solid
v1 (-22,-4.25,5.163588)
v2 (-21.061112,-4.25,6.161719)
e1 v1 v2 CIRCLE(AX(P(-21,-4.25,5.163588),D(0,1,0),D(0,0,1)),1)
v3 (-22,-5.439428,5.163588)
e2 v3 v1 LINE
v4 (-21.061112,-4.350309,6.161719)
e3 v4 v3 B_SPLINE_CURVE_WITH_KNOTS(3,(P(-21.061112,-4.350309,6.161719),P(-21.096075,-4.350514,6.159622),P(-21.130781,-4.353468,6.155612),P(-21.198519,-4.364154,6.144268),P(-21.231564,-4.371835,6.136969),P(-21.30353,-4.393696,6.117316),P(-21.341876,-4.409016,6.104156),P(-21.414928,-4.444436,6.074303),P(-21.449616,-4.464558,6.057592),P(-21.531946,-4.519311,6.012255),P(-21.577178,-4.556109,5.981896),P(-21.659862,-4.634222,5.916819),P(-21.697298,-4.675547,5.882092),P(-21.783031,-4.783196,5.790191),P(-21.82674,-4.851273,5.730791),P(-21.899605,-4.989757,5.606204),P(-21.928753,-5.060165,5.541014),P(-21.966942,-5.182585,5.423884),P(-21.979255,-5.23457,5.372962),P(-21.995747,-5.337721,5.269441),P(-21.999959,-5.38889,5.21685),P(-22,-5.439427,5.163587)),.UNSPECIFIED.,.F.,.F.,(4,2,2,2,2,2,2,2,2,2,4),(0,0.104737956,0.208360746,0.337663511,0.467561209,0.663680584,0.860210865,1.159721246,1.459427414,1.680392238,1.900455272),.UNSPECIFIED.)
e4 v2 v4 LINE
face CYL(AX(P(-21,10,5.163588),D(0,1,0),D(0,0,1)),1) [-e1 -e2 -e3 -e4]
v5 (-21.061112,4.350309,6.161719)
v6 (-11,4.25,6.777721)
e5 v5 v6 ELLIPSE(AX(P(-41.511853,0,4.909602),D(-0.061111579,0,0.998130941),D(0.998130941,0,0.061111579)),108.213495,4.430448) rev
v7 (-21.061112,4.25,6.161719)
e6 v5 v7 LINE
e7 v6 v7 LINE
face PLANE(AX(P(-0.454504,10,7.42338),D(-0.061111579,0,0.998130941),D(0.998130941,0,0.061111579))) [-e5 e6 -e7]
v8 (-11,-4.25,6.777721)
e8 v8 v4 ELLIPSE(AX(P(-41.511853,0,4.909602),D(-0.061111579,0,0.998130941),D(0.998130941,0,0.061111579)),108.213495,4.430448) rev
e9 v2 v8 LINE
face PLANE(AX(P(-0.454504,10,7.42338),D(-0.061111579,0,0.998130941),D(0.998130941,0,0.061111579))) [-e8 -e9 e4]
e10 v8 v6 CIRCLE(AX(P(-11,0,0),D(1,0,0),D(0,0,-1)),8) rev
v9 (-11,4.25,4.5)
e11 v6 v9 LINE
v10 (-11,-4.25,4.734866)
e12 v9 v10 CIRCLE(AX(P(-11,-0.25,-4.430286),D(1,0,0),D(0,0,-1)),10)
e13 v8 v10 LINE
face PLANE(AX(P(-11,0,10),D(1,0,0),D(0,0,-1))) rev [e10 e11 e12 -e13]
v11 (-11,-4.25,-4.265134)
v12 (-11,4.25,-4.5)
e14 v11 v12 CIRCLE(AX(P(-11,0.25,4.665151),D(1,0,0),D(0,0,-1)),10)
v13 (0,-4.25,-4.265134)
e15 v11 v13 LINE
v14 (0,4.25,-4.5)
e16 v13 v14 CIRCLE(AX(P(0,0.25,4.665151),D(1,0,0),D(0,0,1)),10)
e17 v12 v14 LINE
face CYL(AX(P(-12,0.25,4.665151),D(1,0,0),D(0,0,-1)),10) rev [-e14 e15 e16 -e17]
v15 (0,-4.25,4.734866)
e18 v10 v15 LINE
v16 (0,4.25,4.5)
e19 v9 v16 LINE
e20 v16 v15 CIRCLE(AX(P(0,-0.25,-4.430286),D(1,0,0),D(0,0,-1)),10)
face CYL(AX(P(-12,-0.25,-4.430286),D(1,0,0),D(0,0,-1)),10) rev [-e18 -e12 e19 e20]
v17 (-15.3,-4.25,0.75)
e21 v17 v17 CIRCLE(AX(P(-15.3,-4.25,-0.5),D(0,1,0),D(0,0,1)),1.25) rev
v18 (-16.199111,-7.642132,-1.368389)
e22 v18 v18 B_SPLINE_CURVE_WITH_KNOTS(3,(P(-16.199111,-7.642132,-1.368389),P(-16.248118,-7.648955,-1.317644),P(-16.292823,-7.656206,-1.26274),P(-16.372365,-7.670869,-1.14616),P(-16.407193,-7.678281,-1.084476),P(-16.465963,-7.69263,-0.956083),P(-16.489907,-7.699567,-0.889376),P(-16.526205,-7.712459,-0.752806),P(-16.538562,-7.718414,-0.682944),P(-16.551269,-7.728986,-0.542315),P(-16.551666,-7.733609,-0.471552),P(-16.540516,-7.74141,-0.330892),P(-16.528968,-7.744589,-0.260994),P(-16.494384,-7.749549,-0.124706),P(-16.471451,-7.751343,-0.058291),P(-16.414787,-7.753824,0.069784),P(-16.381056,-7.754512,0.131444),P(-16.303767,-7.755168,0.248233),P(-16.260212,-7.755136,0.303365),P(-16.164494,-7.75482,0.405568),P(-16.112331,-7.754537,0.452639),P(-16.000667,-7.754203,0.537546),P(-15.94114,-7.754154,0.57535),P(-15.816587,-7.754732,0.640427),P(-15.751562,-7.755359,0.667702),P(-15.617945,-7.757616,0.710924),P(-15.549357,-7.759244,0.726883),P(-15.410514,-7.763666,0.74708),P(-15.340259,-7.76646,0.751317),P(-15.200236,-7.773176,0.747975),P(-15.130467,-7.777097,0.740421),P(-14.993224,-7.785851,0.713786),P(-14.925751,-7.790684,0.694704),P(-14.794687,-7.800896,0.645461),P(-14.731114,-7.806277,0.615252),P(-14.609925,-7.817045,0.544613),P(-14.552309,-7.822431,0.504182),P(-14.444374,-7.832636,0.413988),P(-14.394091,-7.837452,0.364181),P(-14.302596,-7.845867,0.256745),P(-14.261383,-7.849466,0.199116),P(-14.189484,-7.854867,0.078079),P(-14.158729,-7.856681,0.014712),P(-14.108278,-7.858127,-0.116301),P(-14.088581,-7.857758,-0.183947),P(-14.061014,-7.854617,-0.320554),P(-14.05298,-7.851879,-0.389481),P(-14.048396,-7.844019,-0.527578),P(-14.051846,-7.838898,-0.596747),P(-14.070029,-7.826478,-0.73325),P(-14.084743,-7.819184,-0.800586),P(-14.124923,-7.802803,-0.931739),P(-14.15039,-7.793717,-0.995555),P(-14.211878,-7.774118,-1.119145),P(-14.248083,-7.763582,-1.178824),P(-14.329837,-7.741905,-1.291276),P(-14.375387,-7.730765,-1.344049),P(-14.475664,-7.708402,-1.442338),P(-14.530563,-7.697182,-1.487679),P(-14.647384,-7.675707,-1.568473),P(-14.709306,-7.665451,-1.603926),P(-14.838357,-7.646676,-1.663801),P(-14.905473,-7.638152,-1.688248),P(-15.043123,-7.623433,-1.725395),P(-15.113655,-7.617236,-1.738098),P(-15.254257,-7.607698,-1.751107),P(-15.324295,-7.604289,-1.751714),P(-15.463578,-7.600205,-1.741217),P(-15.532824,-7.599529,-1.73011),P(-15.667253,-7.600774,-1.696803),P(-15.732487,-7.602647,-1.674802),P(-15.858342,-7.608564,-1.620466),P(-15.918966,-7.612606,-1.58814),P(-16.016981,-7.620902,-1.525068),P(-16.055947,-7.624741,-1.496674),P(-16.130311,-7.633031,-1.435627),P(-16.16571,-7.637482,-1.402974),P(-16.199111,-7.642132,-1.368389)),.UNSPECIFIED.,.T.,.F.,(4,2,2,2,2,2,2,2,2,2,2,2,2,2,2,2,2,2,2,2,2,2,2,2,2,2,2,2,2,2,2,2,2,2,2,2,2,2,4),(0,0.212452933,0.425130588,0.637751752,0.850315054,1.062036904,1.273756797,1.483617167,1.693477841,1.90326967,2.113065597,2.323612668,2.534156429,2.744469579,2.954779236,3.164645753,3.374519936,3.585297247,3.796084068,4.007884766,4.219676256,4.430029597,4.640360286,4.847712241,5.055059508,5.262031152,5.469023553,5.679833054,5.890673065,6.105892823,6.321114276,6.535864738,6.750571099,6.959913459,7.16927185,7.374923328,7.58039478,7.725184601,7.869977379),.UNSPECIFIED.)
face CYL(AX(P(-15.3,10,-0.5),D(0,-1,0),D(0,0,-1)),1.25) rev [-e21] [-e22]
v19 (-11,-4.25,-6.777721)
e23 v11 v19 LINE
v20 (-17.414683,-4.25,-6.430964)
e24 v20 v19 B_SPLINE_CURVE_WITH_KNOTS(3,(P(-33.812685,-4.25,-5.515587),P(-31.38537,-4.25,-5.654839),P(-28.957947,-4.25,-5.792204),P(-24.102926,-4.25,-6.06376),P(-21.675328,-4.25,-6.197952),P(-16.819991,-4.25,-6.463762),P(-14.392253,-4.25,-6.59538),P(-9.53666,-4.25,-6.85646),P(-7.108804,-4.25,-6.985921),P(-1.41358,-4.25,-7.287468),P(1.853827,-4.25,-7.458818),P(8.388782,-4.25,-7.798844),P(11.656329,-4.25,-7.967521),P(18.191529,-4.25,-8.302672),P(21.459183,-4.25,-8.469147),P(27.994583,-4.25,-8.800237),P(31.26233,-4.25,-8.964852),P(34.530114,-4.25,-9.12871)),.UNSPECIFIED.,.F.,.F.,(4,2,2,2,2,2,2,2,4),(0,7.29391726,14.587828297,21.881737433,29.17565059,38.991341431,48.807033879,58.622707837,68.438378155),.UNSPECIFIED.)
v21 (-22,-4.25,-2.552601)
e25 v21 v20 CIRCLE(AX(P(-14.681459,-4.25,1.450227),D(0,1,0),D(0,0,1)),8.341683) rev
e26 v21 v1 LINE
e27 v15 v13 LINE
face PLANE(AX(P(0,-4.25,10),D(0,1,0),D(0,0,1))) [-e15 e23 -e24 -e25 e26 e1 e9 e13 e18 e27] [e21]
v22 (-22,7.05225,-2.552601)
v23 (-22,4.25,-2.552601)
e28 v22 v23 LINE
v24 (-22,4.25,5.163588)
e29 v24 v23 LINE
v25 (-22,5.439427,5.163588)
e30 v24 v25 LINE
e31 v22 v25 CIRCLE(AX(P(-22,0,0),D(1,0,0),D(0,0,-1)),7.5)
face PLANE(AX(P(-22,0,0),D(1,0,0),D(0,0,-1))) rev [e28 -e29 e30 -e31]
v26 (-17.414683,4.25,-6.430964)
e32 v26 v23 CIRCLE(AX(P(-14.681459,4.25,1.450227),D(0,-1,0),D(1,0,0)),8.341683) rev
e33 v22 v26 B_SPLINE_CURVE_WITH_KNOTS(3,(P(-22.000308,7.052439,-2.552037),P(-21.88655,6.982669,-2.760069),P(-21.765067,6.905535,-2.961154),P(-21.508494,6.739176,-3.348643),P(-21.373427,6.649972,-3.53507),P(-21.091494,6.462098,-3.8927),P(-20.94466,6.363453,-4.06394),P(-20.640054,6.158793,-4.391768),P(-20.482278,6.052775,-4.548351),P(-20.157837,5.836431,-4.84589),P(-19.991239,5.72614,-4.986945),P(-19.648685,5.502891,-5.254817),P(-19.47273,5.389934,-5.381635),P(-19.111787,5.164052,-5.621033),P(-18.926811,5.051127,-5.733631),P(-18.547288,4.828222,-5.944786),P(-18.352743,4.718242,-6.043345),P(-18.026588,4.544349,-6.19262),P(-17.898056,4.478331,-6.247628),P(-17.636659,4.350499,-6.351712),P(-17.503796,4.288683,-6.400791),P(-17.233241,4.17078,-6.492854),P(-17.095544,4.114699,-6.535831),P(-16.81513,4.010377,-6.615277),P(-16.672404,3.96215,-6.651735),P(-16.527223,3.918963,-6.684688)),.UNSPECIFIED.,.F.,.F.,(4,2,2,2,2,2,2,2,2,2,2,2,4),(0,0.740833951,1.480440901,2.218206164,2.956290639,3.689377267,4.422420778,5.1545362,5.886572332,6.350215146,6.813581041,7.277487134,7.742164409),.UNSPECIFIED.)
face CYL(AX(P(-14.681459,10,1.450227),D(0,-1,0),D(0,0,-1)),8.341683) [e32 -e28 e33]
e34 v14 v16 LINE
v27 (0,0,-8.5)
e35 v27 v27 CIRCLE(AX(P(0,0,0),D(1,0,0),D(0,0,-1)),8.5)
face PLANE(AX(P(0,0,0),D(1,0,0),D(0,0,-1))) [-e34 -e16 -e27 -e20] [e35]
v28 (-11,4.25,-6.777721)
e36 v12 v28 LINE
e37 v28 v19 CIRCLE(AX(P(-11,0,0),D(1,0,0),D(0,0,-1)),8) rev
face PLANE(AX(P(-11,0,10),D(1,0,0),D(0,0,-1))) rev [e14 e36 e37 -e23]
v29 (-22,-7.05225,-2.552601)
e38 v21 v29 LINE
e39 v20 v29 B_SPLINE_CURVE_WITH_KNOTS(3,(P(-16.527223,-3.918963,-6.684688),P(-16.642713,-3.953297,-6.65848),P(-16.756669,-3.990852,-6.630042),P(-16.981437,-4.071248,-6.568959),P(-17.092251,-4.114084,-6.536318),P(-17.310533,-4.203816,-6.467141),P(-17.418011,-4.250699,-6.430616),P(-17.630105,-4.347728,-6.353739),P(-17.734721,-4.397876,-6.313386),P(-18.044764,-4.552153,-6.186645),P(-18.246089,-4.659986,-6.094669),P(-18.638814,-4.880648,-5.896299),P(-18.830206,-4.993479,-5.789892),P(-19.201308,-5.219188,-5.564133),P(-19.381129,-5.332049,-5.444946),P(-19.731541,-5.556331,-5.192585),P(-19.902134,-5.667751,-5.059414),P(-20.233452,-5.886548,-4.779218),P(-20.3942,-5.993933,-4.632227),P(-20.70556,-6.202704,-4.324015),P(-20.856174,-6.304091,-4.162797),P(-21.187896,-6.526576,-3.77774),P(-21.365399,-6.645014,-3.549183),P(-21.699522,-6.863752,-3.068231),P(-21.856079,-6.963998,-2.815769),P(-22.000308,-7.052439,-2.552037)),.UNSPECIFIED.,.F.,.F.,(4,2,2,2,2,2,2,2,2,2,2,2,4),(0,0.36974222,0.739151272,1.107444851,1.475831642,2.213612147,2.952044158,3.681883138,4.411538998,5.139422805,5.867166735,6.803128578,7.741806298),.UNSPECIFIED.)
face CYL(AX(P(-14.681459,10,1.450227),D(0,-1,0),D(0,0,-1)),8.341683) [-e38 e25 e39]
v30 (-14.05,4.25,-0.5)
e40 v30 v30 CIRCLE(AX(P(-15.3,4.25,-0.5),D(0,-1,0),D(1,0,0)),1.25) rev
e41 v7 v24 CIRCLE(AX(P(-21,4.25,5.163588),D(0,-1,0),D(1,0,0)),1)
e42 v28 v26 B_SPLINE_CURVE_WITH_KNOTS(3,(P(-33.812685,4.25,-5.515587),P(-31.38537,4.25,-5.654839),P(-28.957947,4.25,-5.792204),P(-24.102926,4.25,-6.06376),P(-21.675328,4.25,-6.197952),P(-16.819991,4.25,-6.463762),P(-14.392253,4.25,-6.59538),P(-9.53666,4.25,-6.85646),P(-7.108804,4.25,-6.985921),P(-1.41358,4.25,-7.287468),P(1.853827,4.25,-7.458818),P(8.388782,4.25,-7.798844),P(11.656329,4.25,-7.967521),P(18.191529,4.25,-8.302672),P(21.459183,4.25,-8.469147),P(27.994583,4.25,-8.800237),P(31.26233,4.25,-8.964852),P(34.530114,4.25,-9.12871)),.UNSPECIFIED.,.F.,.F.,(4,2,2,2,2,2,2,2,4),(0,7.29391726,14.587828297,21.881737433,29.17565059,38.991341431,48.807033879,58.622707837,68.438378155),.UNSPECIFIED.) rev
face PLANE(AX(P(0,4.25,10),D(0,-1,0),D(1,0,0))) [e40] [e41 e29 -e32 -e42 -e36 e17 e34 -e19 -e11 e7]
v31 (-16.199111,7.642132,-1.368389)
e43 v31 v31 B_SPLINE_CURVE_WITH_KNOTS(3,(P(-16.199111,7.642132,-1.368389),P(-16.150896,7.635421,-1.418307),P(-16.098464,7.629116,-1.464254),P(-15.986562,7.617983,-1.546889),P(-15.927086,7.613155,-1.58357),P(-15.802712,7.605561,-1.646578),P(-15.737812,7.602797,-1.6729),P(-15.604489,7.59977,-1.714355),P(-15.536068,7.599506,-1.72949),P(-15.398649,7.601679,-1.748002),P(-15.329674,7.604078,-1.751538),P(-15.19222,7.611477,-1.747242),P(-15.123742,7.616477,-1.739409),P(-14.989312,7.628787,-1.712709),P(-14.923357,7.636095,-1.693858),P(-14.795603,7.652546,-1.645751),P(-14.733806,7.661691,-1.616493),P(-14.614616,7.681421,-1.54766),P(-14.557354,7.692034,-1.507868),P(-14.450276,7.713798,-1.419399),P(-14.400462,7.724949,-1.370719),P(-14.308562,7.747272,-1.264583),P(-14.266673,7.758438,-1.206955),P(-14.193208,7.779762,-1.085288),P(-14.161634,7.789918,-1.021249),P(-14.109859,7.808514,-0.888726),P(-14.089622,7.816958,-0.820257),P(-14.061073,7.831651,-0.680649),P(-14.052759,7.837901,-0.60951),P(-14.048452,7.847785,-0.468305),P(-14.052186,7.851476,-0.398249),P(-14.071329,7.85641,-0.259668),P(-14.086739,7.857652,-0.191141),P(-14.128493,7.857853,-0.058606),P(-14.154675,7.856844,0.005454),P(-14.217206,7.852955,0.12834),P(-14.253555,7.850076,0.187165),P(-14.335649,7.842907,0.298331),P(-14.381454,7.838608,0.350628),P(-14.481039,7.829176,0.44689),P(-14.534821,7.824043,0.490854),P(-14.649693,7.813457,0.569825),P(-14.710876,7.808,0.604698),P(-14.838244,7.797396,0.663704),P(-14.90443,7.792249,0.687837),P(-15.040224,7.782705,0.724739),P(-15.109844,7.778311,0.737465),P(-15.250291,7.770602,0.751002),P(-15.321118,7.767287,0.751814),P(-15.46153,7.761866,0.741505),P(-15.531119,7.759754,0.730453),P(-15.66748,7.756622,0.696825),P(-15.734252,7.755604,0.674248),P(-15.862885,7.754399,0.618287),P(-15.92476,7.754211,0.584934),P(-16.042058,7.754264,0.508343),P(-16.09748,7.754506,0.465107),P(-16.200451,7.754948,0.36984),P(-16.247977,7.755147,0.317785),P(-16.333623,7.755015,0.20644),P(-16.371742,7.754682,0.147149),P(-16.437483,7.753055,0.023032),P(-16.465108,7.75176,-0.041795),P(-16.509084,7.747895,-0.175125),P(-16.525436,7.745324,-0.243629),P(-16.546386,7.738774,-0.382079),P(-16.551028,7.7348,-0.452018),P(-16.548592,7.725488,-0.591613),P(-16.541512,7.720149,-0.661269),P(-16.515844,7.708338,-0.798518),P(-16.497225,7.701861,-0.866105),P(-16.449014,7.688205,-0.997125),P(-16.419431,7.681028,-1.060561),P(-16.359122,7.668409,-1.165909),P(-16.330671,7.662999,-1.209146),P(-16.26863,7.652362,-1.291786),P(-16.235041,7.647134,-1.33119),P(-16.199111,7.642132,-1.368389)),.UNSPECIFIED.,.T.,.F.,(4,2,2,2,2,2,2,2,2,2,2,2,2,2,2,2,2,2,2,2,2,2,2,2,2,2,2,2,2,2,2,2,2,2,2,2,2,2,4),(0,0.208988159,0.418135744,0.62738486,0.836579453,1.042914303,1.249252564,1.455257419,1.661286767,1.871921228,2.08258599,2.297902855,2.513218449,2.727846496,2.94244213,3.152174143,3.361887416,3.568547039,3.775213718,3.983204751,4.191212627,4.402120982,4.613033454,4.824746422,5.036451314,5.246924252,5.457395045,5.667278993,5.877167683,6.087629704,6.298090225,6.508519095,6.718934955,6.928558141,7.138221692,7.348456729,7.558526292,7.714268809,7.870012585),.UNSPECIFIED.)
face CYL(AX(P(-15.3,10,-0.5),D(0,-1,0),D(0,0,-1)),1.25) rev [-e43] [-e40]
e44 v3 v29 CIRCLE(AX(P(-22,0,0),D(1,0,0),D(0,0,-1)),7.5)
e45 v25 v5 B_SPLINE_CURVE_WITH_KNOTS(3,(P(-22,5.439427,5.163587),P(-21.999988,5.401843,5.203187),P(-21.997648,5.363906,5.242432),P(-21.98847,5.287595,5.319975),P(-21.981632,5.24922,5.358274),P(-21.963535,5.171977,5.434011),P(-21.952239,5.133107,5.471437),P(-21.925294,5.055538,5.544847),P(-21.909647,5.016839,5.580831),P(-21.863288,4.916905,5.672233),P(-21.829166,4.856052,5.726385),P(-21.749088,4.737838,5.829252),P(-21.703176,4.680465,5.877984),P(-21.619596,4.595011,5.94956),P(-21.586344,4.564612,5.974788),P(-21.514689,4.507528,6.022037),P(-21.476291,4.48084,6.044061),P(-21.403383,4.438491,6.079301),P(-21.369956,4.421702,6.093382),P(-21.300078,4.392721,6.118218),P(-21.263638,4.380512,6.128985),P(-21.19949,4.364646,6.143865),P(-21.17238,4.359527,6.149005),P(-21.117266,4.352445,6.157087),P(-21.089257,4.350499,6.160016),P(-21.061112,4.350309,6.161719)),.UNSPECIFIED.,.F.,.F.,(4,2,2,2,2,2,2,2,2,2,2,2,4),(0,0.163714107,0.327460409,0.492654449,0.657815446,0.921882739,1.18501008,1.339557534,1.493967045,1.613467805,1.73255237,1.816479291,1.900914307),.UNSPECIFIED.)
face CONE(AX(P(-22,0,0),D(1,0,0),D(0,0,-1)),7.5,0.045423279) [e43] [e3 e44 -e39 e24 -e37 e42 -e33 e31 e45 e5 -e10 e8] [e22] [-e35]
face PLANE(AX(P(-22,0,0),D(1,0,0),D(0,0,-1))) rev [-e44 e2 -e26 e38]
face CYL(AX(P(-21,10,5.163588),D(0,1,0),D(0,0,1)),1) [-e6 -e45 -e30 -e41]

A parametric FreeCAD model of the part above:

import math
import FreeCAD as App
import Part
import Sketcher
from FreeCAD import Vector


def edges_at(feature, points):
    """Names of the edges that pass closest to the given points."""
    edges = feature.Shape.Edges
    near = lambda p: min(range(len(edges)), key=lambda i: edges[i].distToShape(Part.Vertex(*p))[0])
    return sorted({f"Edge{near(p) + 1}" for p in points})


def add_polygon(sketch, points):
    """Adds a closed chain of lines whose ends are joined by coincident constraints."""
    first, n = sketch.GeometryCount, len(points)
    for a, b in zip(points, points[1:] + points[:1]):
        sketch.addGeometry(Part.LineSegment(App.Vector(*a, 0), App.Vector(*b, 0)), False)
    for i in range(n):
        sketch.addConstraint(Sketcher.Constraint("Coincident", first + i, 2, first + (i + 1) % n, 1))

doc = App.newDocument("Part")
body = doc.addObject("PartDesign::Body", "Body")

sketch1 = body.newObject("Sketcher::SketchObject", "Sketch")
sketch1.AttachmentSupport = (doc.getObject("YZ_Plane"), [""])
sketch1.MapMode = "FlatFace"
sketch1.AttachmentOffset = App.Placement(Vector(0, 0, -22), App.Rotation())
sketch1.addGeometry(Part.Circle(Vector(0, 0, 0), Vector(0, 0, 1), 8), False)
sketch1.addConstraint([
    Sketcher.Constraint("Coincident", 0, 3, -1, 1),
    Sketcher.Constraint("Diameter", 0, 15.0),
])

sketch2 = body.newObject("Sketcher::SketchObject", "Sketch001")
sketch2.AttachmentSupport = (doc.getObject("YZ_Plane"), [""])
sketch2.MapMode = "FlatFace"
sketch2.addGeometry(Part.Circle(Vector(0, 0, 0), Vector(0, 0, 1), 8), False)
sketch2.addConstraint([
    Sketcher.Constraint("Coincident", 0, 3, -1, 1),
    Sketcher.Constraint("Diameter", 0, 17.0),
])

additiveloft = body.newObject("PartDesign::AdditiveLoft", "AdditiveLoft")
additiveloft.Profile = sketch1
additiveloft.Sections = [sketch2]

sketch3 = body.newObject("Sketcher::SketchObject", "Sketch002")
sketch3.AttachmentSupport = (doc.getObject("XY_Plane"), [""])
sketch3.MapMode = "FlatFace"
add_polygon(sketch3, [(-25, 4), (-25, -4), (-11, -4), (-11, 4)])
sketch3.addConstraint([
    Sketcher.Constraint("Vertical", 0),
    Sketcher.Constraint("Horizontal", 1),
    Sketcher.Constraint("Vertical", 2),
    Sketcher.Constraint("Horizontal", 3),
    Sketcher.Constraint("DistanceY", 0, 2, 0, 1, 8.5),
    Sketcher.Constraint("DistanceX", 1, 2, -1, 1, 11.0),
    Sketcher.Constraint("DistanceY", 0, 2, -1, 1, 4.25),
    Sketcher.Constraint("DistanceX", 1, 1, 1, 2, 13.984773),
])
pocket1 = body.newObject("PartDesign::Pocket", "Pocket")
pocket1.Profile = sketch3
pocket1.Type = "ThroughAll"
pocket1.Midplane = True

sketch4 = body.newObject("Sketcher::SketchObject", "Sketch003")
sketch4.AttachmentSupport = (doc.getObject("XZ_Plane"), [""])
sketch4.MapMode = "FlatFace"
sketch4.addGeometry([
    Part.ArcOfCircle(Part.Circle(Vector(-14.7, 1.5, 0), Vector(0, 0, 1), 8.3), math.radians(180), math.radians(257)),
    Part.LineSegment(Vector(-16.5, -6.7, 0), Vector(-11, -6.8, 0)),
    Part.LineSegment(Vector(-11, -6.8, 0), Vector(-11, -10.4, 0)),
    Part.LineSegment(Vector(-11, -10.4, 0), Vector(-27.9, -10.4, 0)),
    Part.LineSegment(Vector(-27.9, -10.4, 0), Vector(-27.9, 8.5, 0)),
    Part.LineSegment(Vector(-27.9, 8.5, 0), Vector(-11, 8.5, 0)),
    Part.LineSegment(Vector(-11, 8.5, 0), Vector(-11, 6.8, 0)),
    Part.LineSegment(Vector(-11, 6.8, 0), Vector(-23, 6, 0)),
    Part.LineSegment(Vector(-23, 6, 0), Vector(-23, 1.5, 0)),
], False)
sketch4.addConstraint([
    Sketcher.Constraint("Coincident", 0, 2, 1, 1),
    Sketcher.Constraint("Coincident", 1, 2, 2, 1),
    Sketcher.Constraint("Coincident", 2, 2, 3, 1),
    Sketcher.Constraint("Coincident", 3, 2, 4, 1),
    Sketcher.Constraint("Coincident", 4, 2, 5, 1),
    Sketcher.Constraint("Coincident", 5, 2, 6, 1),
    Sketcher.Constraint("Coincident", 6, 2, 7, 1),
    Sketcher.Constraint("Coincident", 7, 2, 8, 1),
    Sketcher.Constraint("Tangent", 8, 2, 0, 1),
    Sketcher.Constraint("Vertical", 2),
    Sketcher.Constraint("Horizontal", 3),
    Sketcher.Constraint("Vertical", 4),
    Sketcher.Constraint("Horizontal", 5),
    Sketcher.Constraint("Vertical", 6),
    Sketcher.Constraint("Symmetric", 1, 2, 6, 2, -1),
    Sketcher.Constraint("DistanceX", 1, 2, -1, 1, 11.0),
    Sketcher.Constraint("Radius", 0, 8.341683),
    Sketcher.Constraint("DistanceX", 3, 2, 3, 1, 16.918142),
    Sketcher.Constraint("DistanceY", 6, 2, 6, 1, 1.723759),
    Sketcher.Constraint("DistanceY", 1, 2, 4, 2, 15.279201),
    Sketcher.Constraint("Distance", 7, 12.02476),
    Sketcher.Constraint("Distance", 8, 4.55465),
    Sketcher.Constraint("DistanceY", 2, 2, 2, 1, 3.592775),
    Sketcher.Constraint("DistanceX", 0, 3, -1, 1, 14.681459),
    Sketcher.Constraint("DistanceY", -1, 1, 7, 2, 6.042869),
    Sketcher.Constraint("DistanceY", 0, 2, 0, 3, 8.134869),
])
pocket2 = body.newObject("PartDesign::Pocket", "Pocket001")
pocket2.Profile = sketch4
pocket2.Type = "ThroughAll"
pocket2.Midplane = True

sketch5 = body.newObject("Sketcher::SketchObject", "Sketch004")
sketch5.AttachmentSupport = (doc.getObject("XZ_Plane"), [""])
sketch5.MapMode = "FlatFace"
sketch5.addGeometry(Part.Circle(Vector(-15.3, -0.5, 0), Vector(0, 0, 1), 1.2), False)
sketch5.addConstraint([
    Sketcher.Constraint("Diameter", 0, 2.5),
    Sketcher.Constraint("DistanceX", 0, 3, -1, 1, 15.3),
    Sketcher.Constraint("DistanceY", 0, 3, -1, 1, 0.5),
])
pocket3 = body.newObject("PartDesign::Pocket", "Pocket002")
pocket3.Profile = sketch5
pocket3.Type = "ThroughAll"
pocket3.Midplane = True

sketch6 = body.newObject("Sketcher::SketchObject", "Sketch005")
sketch6.AttachmentSupport = (doc.getObject("YZ_Plane"), [""])
sketch6.MapMode = "FlatFace"
sketch6.addGeometry([
    Part.LineSegment(Vector(4, -4, 0), Vector(4, 4, 0)),
    Part.ArcOfCircle(Part.Circle(Vector(0, -4, 0), Vector(0, 0, 1), 10), math.radians(63), math.radians(114)),
    Part.LineSegment(Vector(-4, 5, 0), Vector(-4, -4, 0)),
    Part.ArcOfCircle(Part.Circle(Vector(0, 5, 0), Vector(0, 0, 1), 10), math.radians(-117), math.radians(-66)),
], False)
sketch6.addConstraint([
    Sketcher.Constraint("Coincident", 0, 2, 1, 1),
    Sketcher.Constraint("Coincident", 1, 2, 2, 1),
    Sketcher.Constraint("Coincident", 2, 2, 3, 1),
    Sketcher.Constraint("Coincident", 3, 2, 0, 1),
    Sketcher.Constraint("Vertical", 0),
    Sketcher.Constraint("Vertical", 2),
    Sketcher.Constraint("Equal", 1, 3),
    Sketcher.Constraint("Equal", 0, 2),
    Sketcher.Constraint("Radius", 1, 10.0),
    Sketcher.Constraint("DistanceY", 0, 1, 0, 2, 9.0),
    Sketcher.Constraint("DistanceX", 3, 3, 0, 2, 4.0),
    Sketcher.Constraint("DistanceY", -1, 1, 0, 2, 4.5),
    Sketcher.Constraint("DistanceX", 1, 3, 3, 3, 0.5),
    Sketcher.Constraint("DistanceX", 1, 3, -1, 1, 0.25),
])
pocket4 = body.newObject("PartDesign::Pocket", "Pocket003")
pocket4.Profile = sketch6
pocket4.Length = 12
doc.recompute()

fillet = body.newObject("PartDesign::Fillet", "Fillet")
fillet.Base = (pocket4, edges_at(pocket4, [(-22, -4.304, 6.104), (-22, 4.304, 6.104)]))
fillet.Radius = 1

doc.recompute()
